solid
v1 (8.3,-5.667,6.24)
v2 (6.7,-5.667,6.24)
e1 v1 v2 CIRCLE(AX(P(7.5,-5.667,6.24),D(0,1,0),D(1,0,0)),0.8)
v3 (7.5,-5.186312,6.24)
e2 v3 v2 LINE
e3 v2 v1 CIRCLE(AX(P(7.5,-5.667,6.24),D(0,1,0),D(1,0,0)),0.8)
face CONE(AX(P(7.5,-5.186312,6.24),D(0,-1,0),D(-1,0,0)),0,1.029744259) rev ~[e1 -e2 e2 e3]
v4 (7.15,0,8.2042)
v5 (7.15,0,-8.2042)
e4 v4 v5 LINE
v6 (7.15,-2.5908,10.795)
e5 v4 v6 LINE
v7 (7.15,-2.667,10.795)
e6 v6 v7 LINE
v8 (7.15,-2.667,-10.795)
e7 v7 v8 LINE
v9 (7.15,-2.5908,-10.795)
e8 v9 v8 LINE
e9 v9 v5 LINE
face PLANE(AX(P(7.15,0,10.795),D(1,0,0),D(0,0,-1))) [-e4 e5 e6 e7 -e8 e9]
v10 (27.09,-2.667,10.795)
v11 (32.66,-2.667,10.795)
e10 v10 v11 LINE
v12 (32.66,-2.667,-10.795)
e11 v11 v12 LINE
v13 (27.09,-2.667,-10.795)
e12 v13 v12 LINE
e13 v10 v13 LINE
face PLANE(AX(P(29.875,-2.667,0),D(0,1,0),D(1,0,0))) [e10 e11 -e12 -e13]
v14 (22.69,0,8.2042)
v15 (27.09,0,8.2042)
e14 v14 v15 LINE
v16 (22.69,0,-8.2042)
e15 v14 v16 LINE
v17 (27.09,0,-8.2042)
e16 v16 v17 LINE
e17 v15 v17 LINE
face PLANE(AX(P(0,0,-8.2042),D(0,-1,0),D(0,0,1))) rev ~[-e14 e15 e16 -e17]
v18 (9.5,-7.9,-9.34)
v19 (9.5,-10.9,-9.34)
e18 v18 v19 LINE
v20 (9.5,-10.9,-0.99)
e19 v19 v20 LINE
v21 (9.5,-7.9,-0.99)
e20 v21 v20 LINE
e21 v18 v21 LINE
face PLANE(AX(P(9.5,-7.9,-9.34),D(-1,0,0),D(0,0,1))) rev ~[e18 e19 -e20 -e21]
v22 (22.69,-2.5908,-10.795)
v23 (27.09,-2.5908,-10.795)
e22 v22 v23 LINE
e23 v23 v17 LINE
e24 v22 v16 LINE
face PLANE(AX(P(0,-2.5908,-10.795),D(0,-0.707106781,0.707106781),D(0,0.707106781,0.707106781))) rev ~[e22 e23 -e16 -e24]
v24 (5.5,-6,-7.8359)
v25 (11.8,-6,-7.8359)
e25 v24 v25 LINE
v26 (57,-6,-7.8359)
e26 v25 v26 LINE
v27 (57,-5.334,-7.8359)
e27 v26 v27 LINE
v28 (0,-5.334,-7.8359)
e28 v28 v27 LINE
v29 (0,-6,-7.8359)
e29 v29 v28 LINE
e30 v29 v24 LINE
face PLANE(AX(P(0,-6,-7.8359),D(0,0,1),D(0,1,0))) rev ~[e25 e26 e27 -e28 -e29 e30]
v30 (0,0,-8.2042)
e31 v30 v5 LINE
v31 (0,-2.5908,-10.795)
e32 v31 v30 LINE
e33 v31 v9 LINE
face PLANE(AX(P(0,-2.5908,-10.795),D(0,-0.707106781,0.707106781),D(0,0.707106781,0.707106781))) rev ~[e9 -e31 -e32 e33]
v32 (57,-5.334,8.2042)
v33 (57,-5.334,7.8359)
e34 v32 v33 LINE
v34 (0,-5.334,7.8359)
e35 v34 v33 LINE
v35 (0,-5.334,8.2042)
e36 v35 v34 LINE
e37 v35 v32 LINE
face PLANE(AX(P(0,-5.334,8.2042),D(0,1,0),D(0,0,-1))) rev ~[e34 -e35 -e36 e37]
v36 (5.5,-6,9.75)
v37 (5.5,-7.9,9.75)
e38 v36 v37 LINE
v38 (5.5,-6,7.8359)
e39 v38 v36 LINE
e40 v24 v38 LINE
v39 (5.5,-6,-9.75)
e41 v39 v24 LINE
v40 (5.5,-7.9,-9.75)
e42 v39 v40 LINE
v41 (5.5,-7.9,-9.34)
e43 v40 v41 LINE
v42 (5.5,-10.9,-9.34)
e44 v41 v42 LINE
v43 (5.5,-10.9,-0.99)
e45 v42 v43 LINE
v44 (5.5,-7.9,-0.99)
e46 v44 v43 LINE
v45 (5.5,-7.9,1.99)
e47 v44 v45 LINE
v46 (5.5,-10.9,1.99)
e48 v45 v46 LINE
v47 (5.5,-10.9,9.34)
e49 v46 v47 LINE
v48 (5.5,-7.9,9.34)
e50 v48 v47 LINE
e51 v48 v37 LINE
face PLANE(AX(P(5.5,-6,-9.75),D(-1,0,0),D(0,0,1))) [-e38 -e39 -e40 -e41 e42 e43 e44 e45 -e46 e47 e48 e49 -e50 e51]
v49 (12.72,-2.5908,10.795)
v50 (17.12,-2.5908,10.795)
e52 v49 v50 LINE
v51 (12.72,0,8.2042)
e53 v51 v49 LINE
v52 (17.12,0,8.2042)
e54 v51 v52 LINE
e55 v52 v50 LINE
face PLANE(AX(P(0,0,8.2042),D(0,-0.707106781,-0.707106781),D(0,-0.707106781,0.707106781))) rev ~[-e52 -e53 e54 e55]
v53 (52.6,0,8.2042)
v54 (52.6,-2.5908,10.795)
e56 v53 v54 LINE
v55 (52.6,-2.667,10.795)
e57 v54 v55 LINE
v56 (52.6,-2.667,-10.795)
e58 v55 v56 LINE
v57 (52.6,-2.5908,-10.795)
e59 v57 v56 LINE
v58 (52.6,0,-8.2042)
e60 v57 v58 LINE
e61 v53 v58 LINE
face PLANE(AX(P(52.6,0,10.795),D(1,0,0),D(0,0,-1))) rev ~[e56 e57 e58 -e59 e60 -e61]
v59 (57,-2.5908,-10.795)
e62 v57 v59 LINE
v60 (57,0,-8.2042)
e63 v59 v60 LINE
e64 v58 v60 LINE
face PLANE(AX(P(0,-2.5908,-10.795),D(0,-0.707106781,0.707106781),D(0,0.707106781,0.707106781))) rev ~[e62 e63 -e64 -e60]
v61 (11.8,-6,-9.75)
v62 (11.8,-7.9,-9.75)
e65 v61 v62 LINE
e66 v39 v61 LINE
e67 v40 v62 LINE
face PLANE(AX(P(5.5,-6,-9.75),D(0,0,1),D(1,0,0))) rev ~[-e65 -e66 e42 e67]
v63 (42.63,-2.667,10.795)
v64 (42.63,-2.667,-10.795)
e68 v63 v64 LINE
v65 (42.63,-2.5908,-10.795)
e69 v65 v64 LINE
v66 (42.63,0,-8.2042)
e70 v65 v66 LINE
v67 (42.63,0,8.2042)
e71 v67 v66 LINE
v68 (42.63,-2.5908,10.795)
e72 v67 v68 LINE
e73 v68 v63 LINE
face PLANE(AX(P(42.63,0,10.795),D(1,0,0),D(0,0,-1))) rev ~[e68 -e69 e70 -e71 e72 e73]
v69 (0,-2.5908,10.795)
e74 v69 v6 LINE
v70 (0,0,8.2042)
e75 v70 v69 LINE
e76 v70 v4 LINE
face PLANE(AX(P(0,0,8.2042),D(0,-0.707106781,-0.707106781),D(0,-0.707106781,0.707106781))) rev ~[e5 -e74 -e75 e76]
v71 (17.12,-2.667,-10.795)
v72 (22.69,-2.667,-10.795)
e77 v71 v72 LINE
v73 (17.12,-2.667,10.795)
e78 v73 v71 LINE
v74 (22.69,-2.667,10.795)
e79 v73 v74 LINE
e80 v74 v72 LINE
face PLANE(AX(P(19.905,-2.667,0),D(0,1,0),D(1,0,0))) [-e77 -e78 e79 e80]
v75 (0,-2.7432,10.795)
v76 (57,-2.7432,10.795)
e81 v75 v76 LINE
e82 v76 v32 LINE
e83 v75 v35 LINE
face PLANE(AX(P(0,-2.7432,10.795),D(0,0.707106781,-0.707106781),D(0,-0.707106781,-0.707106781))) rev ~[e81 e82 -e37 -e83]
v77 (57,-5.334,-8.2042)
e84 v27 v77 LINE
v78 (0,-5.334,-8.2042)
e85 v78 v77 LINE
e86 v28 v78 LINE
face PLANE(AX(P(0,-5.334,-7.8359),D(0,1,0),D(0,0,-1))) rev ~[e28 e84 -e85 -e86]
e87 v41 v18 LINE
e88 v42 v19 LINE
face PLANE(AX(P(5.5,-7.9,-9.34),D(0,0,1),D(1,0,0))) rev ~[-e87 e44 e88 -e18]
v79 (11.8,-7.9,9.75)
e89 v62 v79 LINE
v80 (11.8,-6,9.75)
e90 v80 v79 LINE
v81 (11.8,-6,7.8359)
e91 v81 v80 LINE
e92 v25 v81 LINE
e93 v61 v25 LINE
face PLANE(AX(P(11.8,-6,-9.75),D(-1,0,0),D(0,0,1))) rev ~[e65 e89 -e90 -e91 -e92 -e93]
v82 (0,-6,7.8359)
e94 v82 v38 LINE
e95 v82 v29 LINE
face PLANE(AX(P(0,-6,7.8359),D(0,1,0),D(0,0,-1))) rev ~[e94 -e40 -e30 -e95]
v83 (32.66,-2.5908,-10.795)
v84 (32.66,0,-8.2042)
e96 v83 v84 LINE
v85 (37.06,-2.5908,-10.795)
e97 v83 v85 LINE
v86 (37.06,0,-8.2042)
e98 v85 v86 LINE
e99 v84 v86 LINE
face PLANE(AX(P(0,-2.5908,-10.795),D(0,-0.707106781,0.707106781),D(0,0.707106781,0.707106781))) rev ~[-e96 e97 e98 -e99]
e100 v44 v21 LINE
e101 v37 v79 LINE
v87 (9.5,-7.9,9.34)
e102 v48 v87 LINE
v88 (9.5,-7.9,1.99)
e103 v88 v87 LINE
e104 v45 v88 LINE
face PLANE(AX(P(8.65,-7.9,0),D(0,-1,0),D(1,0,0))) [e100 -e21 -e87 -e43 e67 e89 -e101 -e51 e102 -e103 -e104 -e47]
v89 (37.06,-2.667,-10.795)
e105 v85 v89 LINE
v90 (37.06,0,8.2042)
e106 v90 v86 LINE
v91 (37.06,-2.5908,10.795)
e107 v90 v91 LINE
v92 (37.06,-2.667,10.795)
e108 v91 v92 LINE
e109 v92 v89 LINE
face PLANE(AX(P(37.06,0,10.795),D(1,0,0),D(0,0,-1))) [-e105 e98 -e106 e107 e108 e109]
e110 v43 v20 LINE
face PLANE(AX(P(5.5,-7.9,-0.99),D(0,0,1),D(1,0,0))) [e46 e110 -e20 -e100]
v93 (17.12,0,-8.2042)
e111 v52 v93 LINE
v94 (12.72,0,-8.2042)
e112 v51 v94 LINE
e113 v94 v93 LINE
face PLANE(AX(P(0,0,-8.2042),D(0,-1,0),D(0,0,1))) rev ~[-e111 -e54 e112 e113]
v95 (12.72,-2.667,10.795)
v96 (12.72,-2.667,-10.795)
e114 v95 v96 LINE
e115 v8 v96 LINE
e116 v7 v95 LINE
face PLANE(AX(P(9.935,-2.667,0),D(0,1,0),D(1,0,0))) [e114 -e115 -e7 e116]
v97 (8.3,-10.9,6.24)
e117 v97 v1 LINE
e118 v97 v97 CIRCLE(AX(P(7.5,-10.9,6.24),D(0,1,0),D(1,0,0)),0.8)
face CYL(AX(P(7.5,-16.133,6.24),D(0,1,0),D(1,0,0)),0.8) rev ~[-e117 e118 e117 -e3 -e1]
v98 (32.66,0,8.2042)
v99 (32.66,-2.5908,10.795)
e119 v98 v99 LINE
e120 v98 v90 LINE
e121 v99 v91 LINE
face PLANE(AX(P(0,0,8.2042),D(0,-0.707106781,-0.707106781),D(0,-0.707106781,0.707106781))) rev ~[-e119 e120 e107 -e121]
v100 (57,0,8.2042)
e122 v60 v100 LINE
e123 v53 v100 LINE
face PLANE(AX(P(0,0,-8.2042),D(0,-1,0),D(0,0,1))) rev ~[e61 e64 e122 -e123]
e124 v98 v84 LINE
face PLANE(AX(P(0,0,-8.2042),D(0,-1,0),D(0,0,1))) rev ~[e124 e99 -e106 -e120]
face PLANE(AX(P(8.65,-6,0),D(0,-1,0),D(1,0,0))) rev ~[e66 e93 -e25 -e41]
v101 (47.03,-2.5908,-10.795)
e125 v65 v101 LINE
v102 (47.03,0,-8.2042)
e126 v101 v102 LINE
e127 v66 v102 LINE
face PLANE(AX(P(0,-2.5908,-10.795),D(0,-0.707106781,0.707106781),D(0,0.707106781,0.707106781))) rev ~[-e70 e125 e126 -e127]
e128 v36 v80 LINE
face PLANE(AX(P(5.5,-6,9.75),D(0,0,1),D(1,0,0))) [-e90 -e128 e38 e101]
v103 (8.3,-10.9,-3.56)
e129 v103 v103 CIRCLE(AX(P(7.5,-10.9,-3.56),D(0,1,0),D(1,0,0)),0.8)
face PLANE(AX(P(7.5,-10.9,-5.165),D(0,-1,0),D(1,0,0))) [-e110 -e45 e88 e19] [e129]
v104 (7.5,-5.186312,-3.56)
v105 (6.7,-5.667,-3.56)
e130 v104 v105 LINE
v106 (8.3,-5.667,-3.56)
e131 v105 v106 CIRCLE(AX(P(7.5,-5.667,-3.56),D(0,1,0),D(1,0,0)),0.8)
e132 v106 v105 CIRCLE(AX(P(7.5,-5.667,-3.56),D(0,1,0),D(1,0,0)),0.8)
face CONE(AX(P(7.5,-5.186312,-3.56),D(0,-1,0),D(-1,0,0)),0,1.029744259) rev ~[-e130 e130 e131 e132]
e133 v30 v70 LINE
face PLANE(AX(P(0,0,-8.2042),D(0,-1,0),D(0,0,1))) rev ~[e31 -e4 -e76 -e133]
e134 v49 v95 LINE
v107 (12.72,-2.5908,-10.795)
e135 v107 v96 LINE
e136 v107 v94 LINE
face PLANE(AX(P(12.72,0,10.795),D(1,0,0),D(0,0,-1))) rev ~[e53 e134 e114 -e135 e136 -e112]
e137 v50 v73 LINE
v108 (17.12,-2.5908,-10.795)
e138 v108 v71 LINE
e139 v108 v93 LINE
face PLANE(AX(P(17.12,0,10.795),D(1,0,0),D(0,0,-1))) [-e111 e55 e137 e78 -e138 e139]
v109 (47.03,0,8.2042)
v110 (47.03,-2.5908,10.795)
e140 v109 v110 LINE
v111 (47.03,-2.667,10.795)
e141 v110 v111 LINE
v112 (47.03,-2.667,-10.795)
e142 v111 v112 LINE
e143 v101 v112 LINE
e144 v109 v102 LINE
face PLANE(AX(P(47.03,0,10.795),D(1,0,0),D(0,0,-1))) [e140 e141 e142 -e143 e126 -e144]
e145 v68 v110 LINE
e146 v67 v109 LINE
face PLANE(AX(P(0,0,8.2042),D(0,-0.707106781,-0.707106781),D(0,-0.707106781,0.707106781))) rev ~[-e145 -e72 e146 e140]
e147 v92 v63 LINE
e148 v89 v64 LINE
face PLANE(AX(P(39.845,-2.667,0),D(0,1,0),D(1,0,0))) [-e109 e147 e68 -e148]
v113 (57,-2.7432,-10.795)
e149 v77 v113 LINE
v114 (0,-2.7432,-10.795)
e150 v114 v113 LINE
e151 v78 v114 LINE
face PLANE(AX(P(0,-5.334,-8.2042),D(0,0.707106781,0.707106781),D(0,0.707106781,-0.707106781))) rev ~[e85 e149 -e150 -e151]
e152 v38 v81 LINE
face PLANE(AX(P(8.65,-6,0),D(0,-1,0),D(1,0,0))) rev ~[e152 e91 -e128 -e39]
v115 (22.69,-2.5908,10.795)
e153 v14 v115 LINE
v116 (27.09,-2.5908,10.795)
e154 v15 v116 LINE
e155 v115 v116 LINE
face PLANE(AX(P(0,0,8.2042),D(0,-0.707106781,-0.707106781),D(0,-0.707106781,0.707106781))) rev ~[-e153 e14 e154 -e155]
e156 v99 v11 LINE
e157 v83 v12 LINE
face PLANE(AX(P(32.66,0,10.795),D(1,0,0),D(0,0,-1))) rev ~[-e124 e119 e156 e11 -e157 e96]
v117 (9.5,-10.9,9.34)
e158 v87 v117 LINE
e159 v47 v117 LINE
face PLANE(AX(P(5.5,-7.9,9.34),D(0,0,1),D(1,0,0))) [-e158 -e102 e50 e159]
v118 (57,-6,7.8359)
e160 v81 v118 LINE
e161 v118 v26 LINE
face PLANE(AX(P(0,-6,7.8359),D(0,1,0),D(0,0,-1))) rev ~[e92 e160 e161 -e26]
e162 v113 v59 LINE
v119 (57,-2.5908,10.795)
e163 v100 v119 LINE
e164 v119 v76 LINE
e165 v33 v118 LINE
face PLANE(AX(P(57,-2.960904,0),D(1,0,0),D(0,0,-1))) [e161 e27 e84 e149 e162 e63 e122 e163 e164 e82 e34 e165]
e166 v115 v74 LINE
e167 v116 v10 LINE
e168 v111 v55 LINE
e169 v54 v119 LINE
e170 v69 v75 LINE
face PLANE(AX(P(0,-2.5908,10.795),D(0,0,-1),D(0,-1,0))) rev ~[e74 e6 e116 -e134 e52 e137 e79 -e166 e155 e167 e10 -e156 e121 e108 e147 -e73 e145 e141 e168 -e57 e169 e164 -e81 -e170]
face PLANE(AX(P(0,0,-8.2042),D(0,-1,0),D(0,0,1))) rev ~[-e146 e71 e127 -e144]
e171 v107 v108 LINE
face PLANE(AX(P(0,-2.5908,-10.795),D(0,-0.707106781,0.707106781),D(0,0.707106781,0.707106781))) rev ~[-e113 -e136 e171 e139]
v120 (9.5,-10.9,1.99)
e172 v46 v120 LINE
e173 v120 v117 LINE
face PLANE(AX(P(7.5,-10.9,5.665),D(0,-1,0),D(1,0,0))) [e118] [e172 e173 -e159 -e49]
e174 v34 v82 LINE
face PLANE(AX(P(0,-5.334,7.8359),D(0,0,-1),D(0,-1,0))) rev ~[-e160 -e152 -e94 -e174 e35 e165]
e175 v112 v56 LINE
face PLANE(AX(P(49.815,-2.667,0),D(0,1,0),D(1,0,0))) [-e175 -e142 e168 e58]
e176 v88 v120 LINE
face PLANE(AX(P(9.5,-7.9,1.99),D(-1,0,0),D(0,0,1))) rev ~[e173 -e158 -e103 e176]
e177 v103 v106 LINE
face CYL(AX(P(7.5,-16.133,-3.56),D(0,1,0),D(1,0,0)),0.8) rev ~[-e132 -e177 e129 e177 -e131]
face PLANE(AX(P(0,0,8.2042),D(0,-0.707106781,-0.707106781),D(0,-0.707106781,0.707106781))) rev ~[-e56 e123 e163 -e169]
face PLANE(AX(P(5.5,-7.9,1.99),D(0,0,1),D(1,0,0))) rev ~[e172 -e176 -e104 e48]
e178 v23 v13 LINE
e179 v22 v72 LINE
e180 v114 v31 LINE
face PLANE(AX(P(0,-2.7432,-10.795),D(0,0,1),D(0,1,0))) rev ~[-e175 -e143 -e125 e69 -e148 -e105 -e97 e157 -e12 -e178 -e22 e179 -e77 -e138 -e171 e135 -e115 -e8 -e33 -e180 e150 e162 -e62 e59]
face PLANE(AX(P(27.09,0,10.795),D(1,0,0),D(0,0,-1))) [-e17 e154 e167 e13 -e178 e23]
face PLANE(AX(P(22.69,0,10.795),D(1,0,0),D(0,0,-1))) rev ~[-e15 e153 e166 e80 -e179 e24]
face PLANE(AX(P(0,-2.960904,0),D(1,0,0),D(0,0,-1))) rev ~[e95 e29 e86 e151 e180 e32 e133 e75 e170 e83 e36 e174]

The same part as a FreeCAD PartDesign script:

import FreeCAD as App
import Part
import Sketcher
Q = App.Units.Quantity

doc = App.newDocument("Part")
body = doc.addObject("PartDesign::Body", "Body")

# Sketch on YZ plane
sketch1 = body.newObject("Sketcher::SketchObject", "Sketch")
sketch1.AttachmentSupport = (doc.getObject("YZ_Plane"), [""])
sketch1.MapMode = "FlatFace"
sketch1.addGeometry([
    Part.LineSegment(App.Vector(-6, 7.8359, 0), App.Vector(-6, -7.8359, 0)),  # 0
    Part.LineSegment(App.Vector(-6, -7.8359, 0), App.Vector(-5.334, -7.8359, 0)),  # 1
    Part.LineSegment(App.Vector(-5.334, -7.8359, 0), App.Vector(-5.334, -8.2042, 0)),  # 2
    Part.LineSegment(App.Vector(-5.334, -8.2042, 0), App.Vector(-2.7432, -10.795, 0)),  # 3
    Part.LineSegment(App.Vector(-2.7432, -10.795, 0), App.Vector(-2.5908, -10.795, 0)),  # 4
    Part.LineSegment(App.Vector(-2.5908, -10.795, 0), App.Vector(0, -8.2042, 0)),  # 5
    Part.LineSegment(App.Vector(0, -8.2042, 0), App.Vector(0, 8.2042, 0)),  # 6
    Part.LineSegment(App.Vector(0, 8.2042, 0), App.Vector(-2.5908, 10.795, 0)),  # 7
    Part.LineSegment(App.Vector(-2.5908, 10.795, 0), App.Vector(-2.7432, 10.795, 0)),  # 8
    Part.LineSegment(App.Vector(-2.7432, 10.795, 0), App.Vector(-5.334, 8.2042, 0)),  # 9
    Part.LineSegment(App.Vector(-5.334, 8.2042, 0), App.Vector(-5.334, 7.8359, 0)),  # 10
    Part.LineSegment(App.Vector(-5.334, 7.8359, 0), App.Vector(-6, 7.8359, 0)),  # 11
], False)
sketch1.addConstraint([
    Sketcher.Constraint("Coincident", 0, 2, 1, 1),
    Sketcher.Constraint("Coincident", 1, 2, 2, 1),
    Sketcher.Constraint("Coincident", 2, 2, 3, 1),
    Sketcher.Constraint("Coincident", 3, 2, 4, 1),
    Sketcher.Constraint("Coincident", 4, 2, 5, 1),
    Sketcher.Constraint("Coincident", 5, 2, 6, 1),
    Sketcher.Constraint("Coincident", 6, 2, 7, 1),
    Sketcher.Constraint("Coincident", 7, 2, 8, 1),
    Sketcher.Constraint("Coincident", 8, 2, 9, 1),
    Sketcher.Constraint("Coincident", 9, 2, 10, 1),
    Sketcher.Constraint("Coincident", 10, 2, 11, 1),
    Sketcher.Constraint("Coincident", 11, 2, 0, 1),
    Sketcher.Constraint("Vertical", 0),
    Sketcher.Constraint("Horizontal", 1),
    Sketcher.Constraint("Vertical", 2),
    Sketcher.Constraint("Horizontal", 4),
    Sketcher.Constraint("Vertical", 6),
    Sketcher.Constraint("Horizontal", 8),
    Sketcher.Constraint("Vertical", 10),
    Sketcher.Constraint("Horizontal", 11),
    Sketcher.Constraint("Symmetric", 5, 2, 6, 2, -1, 1),
    Sketcher.Constraint("Symmetric", 4, 2, 7, 2, -1),
    Sketcher.Constraint("Symmetric", 2, 2, 9, 2, -1),
    Sketcher.Constraint("Perpendicular", 3, 5),
    Sketcher.Constraint("Perpendicular", 5, 7),
    Sketcher.Constraint("Perpendicular", 7, 9),
    Sketcher.Constraint("Horizontal", 2, 2, 5, 2),
    Sketcher.Constraint("Equal", 2, 10),
    Sketcher.Constraint("DistanceX", 0, 2, -1, 1, Q("6 mm")),
    Sketcher.Constraint("DistanceX", 1, 1, 1, 2, Q("0.666 mm")),
    Sketcher.Constraint("DistanceX", 4, 1, 4, 2, Q("0.1524 mm")),
    Sketcher.Constraint("DistanceY", 0, 2, 0, 1, Q("15.6718 mm")),
    Sketcher.Constraint("DistanceY", 2, 2, 2, 1, Q("0.3683 mm")),
])
pad1 = body.newObject("PartDesign::Pad", "Pad")
pad1.Profile = sketch1
pad1.Length = 57

# Sketch on XZ plane
sketch2 = body.newObject("Sketcher::SketchObject", "Sketch001")
sketch2.AttachmentSupport = (doc.getObject("XZ_Plane"), [""])
sketch2.MapMode = "FlatFace"
sketch2.addGeometry([
    Part.LineSegment(App.Vector(47.03, -10.795, 0), App.Vector(47.03, 10.795, 0)),
    Part.LineSegment(App.Vector(47.03, 10.795, 0), App.Vector(52.6, 10.795, 0)),
    Part.LineSegment(App.Vector(52.6, 10.795, 0), App.Vector(52.6, -10.795, 0)),
    Part.LineSegment(App.Vector(52.6, -10.795, 0), App.Vector(47.03, -10.795, 0)),
], False)
sketch2.addConstraint([
    Sketcher.Constraint("Coincident", 0, 2, 1, 1),
    Sketcher.Constraint("Coincident", 1, 2, 2, 1),
    Sketcher.Constraint("Coincident", 2, 2, 3, 1),
    Sketcher.Constraint("Coincident", 3, 2, 0, 1),
    Sketcher.Constraint("Vertical", 0),
    Sketcher.Constraint("Horizontal", 1),
    Sketcher.Constraint("Vertical", 2),
    Sketcher.Constraint("Horizontal", 3),
    Sketcher.Constraint("DistanceX", 1, 1, 1, 2, Q("5.57 mm")),
    Sketcher.Constraint("DistanceY", 0, 1, 0, 2, Q("21.59 mm")),
    Sketcher.Constraint("DistanceX", -1, 1, 1, 2, Q("52.6 mm")),
    Sketcher.Constraint("DistanceY", -1, 1, 0, 2, Q("10.795 mm")),
])
pocket1 = body.newObject("PartDesign::Pocket", "Pocket")
pocket1.Profile = sketch2
pocket1.Length = 2.667
pocket1.Reversed = True
doc.recompute()

linearpattern = body.newObject("PartDesign::LinearPattern", "LinearPattern")
linearpattern.Originals = [pocket1]
linearpattern.Direction = (doc.getObject("X_Axis"), [""])
linearpattern.Mode = "offset"
linearpattern.Offset = 9.97
linearpattern.Occurrences = 5
linearpattern.Reversed = True
body.Tip = linearpattern

# Sketch on XZ plane
sketch3 = body.newObject("Sketcher::SketchObject", "Sketch002")
sketch3.AttachmentSupport = (doc.getObject("XZ_Plane"), [""])
sketch3.MapMode = "FlatFace"
sketch3.AttachmentOffset = App.Placement(App.Vector(0, 0, 6), App.Rotation())
sketch3.addGeometry([
    Part.LineSegment(App.Vector(5.5, 9.75, 0), App.Vector(5.5, -9.75, 0)),
    Part.LineSegment(App.Vector(5.5, -9.75, 0), App.Vector(11.8, -9.75, 0)),
    Part.LineSegment(App.Vector(11.8, -9.75, 0), App.Vector(11.8, 9.75, 0)),
    Part.LineSegment(App.Vector(11.8, 9.75, 0), App.Vector(5.5, 9.75, 0)),
], False)
sketch3.addConstraint([
    Sketcher.Constraint("Coincident", 0, 2, 1, 1),
    Sketcher.Constraint("Coincident", 1, 2, 2, 1),
    Sketcher.Constraint("Coincident", 2, 2, 3, 1),
    Sketcher.Constraint("Coincident", 3, 2, 0, 1),
    Sketcher.Constraint("Vertical", 0),
    Sketcher.Constraint("Horizontal", 1),
    Sketcher.Constraint("Vertical", 2),
    Sketcher.Constraint("Horizontal", 3),
    Sketcher.Constraint("DistanceX", 1, 1, 1, 2, Q("6.3 mm")),
    Sketcher.Constraint("DistanceY", 0, 2, 0, 1, Q("19.5 mm")),
    Sketcher.Constraint("DistanceX", -1, 1, 0, 2, Q("5.5 mm")),
    Sketcher.Constraint("DistanceY", 0, 2, -1, 1, Q("9.75 mm")),
])
pad2 = body.newObject("PartDesign::Pad", "Pad001")
pad2.Profile = sketch3
pad2.Length = 1.9

# Sketch on XZ plane
sketch4 = body.newObject("Sketcher::SketchObject", "Sketch003")
sketch4.AttachmentSupport = (doc.getObject("XZ_Plane"), [""])
sketch4.MapMode = "FlatFace"
sketch4.AttachmentOffset = App.Placement(App.Vector(0, 0, 7.9), App.Rotation())
sketch4.addGeometry([
    Part.LineSegment(App.Vector(5.5, -0.99, 0), App.Vector(5.5, -9.34, 0)),  # 0
    Part.LineSegment(App.Vector(5.5, -9.34, 0), App.Vector(9.5, -9.34, 0)),  # 1
    Part.LineSegment(App.Vector(9.5, -9.34, 0), App.Vector(9.5, -0.99, 0)),  # 2
    Part.LineSegment(App.Vector(9.5, -0.99, 0), App.Vector(5.5, -0.99, 0)),  # 3
    Part.LineSegment(App.Vector(5.5, 9.34, 0), App.Vector(5.5, 1.99, 0)),  # 4
    Part.LineSegment(App.Vector(5.5, 1.99, 0), App.Vector(9.5, 1.99, 0)),  # 5
    Part.LineSegment(App.Vector(9.5, 1.99, 0), App.Vector(9.5, 9.34, 0)),  # 6
    Part.LineSegment(App.Vector(9.5, 9.34, 0), App.Vector(5.5, 9.34, 0)),  # 7
], False)
sketch4.addConstraint([
    Sketcher.Constraint("Coincident", 0, 2, 1, 1),
    Sketcher.Constraint("Coincident", 1, 2, 2, 1),
    Sketcher.Constraint("Coincident", 2, 2, 3, 1),
    Sketcher.Constraint("Coincident", 3, 2, 0, 1),
    Sketcher.Constraint("Coincident", 4, 2, 5, 1),
    Sketcher.Constraint("Coincident", 5, 2, 6, 1),
    Sketcher.Constraint("Coincident", 6, 2, 7, 1),
    Sketcher.Constraint("Coincident", 7, 2, 4, 1),
    Sketcher.Constraint("Vertical", 0),
    Sketcher.Constraint("Horizontal", 1),
    Sketcher.Constraint("Vertical", 2),
    Sketcher.Constraint("Horizontal", 3),
    Sketcher.Constraint("Vertical", 4),
    Sketcher.Constraint("Horizontal", 5),
    Sketcher.Constraint("Vertical", 6),
    Sketcher.Constraint("Horizontal", 7),
    Sketcher.Constraint("Symmetric", 1, 2, 6, 2, -1),
    Sketcher.Constraint("Vertical", 3, 2, 4, 2),
    Sketcher.Constraint("DistanceX", 1, 1, 1, 2, Q("4 mm")),
    Sketcher.Constraint("DistanceY", 0, 2, 0, 1, Q("8.35 mm")),
    Sketcher.Constraint("DistanceY", 4, 2, 4, 1, Q("7.35 mm")),
    Sketcher.Constraint("DistanceX", -1, 1, 0, 2, Q("5.5 mm")),
    Sketcher.Constraint("DistanceY", 0, 2, -1, 1, Q("9.34 mm")),
])
pad3 = body.newObject("PartDesign::Pad", "Pad002")
pad3.Profile = sketch4
pad3.Length = 3

# Sketch on XZ plane
sketch5 = body.newObject("Sketcher::SketchObject", "Sketch004")
sketch5.AttachmentSupport = (doc.getObject("XZ_Plane"), [""])
sketch5.MapMode = "FlatFace"
sketch5.AttachmentOffset = App.Placement(App.Vector(0, 0, 10.9), App.Rotation())
sketch5.addGeometry([
    Part.Circle(App.Vector(7.5, 6.24, 0), App.Vector(0, 0, 1), 0.8),
    Part.Circle(App.Vector(7.5, -3.56, 0), App.Vector(0, 0, 1), 0.8),
], False)
sketch5.addConstraint([
    Sketcher.Constraint("Equal", 0, 1),
    Sketcher.Constraint("Vertical", 0, 3, 1, 3),
    Sketcher.Constraint("Diameter", 0, Q("1.6 mm")),
    Sketcher.Constraint("DistanceX", -1, 1, 0, 3, Q("7.5 mm")),
    Sketcher.Constraint("DistanceY", 1, 3, 0, 3, Q("9.8 mm")),
    Sketcher.Constraint("DistanceY", -1, 1, 0, 3, Q("6.24 mm")),
])
doc.recompute()
hole = body.newObject("PartDesign::Hole", "Hole")
hole.Profile = sketch5
hole.ThreadType = "None"
hole.Diameter = 1.6
hole.DepthType = "Dimension"
hole.Depth = 5.233
hole.DrillPoint = "Angled"
hole.DrillPointAngle = 118

doc.recompute()
